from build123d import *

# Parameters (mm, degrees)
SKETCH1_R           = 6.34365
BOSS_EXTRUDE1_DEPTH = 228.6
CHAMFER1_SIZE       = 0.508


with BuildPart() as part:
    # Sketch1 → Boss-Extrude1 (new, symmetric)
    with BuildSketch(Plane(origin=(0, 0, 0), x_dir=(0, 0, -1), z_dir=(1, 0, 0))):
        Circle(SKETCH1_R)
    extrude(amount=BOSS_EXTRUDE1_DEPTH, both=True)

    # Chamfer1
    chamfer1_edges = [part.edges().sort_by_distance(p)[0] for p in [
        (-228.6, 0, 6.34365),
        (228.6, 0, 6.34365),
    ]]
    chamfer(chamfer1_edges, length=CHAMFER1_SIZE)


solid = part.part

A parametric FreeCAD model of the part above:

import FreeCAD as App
import Part
import Sketcher

V = App.Vector
Q = App.Units.Quantity


def edges_at(feature, points):
    """Names of the edges that pass closest to the given points."""
    edges = feature.Shape.Edges
    near = lambda p: min(range(len(edges)), key=lambda i: edges[i].distToShape(Part.Vertex(*p))[0])
    return sorted({f"Edge{near(p) + 1}" for p in points})

doc = App.newDocument("Part")
params = doc.addObject("Spreadsheet::Sheet", "Params")
for row, (alias, value) in enumerate([
    ("pad1_length", "18 in"),
    ("chamfer_size", "0.02 in"),
], start=1):
    params.set(f"A{row}", alias)
    params.set(f"B{row}", "=" + value)
    params.setAlias(f"B{row}", alias)

body = doc.addObject("PartDesign::Body", "Body")

sketch1 = body.newObject("Sketcher::SketchObject", "Sketch")
sketch1.AttachmentSupport = (doc.getObject("YZ_Plane"), [""])
sketch1.MapMode = "FlatFace"
sketch1.addGeometry(Part.Circle(V(0, 0, 0), V(0, 0, 1), 6.34365), False)
sketch1.addConstraint(Sketcher.Constraint("Coincident", 0, 3, -1, 1))
sketch1.addConstraint(Sketcher.Constraint("Diameter", 0, Q("0.4995 in")))
pad1 = body.newObject("PartDesign::Pad", "Pad")
pad1.Profile = sketch1
pad1.setExpression("Length", "Params.pad1_length")
pad1.Midplane = True
doc.recompute()

chamfer = body.newObject("PartDesign::Chamfer", "Chamfer")
chamfer.Base = (pad1, edges_at(pad1, [(-228.6, 0, 6.344), (228.6, 0, 6.344)]))
chamfer.setExpression("Size", "Params.chamfer_size")

doc.recompute()
